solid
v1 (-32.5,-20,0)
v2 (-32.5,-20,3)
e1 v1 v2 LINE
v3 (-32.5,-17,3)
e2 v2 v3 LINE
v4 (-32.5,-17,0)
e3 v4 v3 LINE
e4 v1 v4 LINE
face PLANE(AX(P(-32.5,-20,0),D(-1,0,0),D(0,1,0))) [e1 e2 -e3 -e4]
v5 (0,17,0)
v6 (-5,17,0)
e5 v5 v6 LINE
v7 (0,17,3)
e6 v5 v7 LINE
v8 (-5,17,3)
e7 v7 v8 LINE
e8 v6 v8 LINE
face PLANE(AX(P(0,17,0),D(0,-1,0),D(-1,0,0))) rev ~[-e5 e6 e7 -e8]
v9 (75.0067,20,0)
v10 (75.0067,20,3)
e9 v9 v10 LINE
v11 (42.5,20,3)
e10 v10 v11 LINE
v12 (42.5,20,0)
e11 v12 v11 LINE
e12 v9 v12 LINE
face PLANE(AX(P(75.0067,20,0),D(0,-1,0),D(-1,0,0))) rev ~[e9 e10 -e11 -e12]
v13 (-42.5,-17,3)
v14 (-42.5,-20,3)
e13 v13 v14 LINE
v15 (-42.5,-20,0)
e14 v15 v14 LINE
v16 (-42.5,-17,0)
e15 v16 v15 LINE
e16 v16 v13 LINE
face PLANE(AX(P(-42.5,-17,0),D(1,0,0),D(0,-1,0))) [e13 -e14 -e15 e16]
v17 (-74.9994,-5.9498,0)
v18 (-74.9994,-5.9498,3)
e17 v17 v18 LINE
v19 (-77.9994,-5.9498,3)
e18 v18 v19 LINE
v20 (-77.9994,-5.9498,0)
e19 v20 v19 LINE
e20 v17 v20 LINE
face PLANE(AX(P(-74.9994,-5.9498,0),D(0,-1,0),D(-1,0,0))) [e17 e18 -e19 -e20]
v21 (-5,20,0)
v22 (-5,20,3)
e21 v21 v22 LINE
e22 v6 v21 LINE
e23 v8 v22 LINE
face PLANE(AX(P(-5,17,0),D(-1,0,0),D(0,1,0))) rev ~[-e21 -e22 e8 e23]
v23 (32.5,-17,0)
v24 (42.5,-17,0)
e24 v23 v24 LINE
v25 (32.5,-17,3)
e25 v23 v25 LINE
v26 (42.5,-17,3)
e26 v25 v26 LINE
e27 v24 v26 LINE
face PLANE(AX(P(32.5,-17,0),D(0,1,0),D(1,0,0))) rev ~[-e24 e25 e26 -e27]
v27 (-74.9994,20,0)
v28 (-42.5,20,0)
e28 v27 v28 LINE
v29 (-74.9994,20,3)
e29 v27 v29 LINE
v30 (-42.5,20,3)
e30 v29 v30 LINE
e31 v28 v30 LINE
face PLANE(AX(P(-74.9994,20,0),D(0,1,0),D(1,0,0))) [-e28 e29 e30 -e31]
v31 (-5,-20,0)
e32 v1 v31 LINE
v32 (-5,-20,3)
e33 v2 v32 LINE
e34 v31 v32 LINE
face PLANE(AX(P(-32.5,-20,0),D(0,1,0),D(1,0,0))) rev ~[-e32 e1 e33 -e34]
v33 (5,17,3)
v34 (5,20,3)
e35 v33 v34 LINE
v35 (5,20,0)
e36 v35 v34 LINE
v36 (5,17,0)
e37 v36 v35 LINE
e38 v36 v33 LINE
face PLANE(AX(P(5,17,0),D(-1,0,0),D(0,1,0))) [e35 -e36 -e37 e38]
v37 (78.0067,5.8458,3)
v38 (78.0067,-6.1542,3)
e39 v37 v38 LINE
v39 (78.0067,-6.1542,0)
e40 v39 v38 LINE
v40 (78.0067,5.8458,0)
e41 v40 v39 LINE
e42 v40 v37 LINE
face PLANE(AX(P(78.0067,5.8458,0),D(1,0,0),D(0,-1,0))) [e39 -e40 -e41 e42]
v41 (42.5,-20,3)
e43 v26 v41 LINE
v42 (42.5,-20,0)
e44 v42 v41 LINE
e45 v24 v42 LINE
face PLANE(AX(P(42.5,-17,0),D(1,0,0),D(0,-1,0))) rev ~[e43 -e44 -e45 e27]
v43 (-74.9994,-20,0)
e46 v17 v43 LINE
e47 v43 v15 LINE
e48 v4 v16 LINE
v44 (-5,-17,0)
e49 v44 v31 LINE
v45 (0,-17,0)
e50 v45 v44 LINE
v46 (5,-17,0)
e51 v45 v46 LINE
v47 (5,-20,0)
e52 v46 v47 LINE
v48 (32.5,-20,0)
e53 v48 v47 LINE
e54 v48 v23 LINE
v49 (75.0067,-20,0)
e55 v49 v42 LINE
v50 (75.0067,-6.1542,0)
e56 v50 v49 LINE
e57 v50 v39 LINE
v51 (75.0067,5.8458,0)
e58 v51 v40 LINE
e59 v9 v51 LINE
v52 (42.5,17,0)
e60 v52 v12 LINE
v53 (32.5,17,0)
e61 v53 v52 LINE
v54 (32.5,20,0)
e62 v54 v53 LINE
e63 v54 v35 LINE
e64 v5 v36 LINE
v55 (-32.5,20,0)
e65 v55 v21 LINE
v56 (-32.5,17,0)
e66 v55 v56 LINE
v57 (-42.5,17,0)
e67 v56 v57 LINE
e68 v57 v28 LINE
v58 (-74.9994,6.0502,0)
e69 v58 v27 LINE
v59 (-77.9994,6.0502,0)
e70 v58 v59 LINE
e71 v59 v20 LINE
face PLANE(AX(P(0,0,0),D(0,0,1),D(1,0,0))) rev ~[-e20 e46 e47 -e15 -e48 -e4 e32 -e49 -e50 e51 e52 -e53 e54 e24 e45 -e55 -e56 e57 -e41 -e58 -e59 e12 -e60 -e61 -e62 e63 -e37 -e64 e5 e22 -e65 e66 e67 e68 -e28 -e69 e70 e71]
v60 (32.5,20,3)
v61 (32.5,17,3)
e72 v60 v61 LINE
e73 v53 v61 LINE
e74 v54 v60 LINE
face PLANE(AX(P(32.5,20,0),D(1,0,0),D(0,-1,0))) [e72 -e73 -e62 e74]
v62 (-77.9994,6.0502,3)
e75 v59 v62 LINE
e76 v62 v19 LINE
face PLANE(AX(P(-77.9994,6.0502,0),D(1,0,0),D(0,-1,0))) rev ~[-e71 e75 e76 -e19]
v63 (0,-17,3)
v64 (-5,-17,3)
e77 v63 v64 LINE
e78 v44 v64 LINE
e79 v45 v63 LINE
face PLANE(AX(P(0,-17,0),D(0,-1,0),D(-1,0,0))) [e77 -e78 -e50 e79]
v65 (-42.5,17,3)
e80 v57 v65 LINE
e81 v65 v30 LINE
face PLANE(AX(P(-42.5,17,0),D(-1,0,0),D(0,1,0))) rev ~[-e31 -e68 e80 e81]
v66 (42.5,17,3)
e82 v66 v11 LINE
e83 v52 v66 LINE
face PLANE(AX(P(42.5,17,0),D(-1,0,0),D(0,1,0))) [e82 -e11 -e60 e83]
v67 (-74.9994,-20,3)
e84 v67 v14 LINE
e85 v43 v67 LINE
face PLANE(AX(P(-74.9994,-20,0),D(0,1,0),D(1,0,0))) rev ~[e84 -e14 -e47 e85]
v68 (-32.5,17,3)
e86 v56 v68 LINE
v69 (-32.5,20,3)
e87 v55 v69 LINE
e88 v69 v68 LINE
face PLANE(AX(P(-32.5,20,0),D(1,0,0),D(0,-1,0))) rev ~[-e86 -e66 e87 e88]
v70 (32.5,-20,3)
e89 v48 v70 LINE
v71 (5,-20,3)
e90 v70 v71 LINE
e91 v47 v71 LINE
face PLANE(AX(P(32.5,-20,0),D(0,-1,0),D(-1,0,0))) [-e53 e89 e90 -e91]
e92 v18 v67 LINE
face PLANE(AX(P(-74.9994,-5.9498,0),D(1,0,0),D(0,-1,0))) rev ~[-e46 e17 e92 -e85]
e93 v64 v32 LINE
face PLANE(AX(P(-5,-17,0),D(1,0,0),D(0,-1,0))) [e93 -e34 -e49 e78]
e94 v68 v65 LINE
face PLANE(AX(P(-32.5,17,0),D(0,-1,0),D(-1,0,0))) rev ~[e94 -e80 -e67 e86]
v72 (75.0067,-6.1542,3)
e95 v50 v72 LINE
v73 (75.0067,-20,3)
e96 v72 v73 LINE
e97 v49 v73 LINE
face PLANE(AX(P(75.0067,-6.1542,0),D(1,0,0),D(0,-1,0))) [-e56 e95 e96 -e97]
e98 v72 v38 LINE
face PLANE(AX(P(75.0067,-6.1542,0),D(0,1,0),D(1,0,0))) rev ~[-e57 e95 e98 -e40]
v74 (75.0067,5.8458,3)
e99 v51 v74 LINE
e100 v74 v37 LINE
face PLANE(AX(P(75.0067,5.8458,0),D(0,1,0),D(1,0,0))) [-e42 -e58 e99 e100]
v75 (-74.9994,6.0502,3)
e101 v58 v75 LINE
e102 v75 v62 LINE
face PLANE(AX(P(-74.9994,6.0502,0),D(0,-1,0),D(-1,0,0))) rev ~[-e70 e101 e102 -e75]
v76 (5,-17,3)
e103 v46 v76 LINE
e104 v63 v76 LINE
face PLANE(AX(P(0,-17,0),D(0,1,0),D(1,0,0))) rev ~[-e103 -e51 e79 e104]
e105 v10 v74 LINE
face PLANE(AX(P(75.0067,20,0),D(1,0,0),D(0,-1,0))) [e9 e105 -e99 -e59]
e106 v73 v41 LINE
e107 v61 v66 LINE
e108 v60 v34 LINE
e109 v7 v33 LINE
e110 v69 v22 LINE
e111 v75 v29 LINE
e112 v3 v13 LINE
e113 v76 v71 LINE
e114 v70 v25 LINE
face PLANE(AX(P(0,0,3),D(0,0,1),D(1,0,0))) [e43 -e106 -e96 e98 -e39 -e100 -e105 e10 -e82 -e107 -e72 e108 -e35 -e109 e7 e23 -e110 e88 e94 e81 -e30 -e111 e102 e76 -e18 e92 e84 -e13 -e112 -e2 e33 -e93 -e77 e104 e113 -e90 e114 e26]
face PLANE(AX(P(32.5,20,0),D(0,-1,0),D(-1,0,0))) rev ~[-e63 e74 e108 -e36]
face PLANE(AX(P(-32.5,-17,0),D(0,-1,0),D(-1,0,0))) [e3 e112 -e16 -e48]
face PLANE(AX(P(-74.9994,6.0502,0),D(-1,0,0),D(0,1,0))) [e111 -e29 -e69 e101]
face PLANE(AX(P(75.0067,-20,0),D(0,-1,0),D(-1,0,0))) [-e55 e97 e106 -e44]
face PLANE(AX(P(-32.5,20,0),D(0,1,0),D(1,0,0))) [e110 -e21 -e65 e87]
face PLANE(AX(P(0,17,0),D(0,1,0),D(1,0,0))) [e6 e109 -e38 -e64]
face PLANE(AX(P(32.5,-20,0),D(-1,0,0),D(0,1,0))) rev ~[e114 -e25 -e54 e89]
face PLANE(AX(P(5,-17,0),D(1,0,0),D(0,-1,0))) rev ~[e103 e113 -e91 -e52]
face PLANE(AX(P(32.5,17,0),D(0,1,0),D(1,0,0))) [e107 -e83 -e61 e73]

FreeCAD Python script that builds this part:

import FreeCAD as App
import Part
import Sketcher
from FreeCAD import Vector
Q = App.Units.Quantity


def add_polygon(sketch, points):
    """Adds a closed chain of lines whose ends are joined by coincident constraints."""
    first, n = sketch.GeometryCount, len(points)
    for a, b in zip(points, points[1:] + points[:1]):
        sketch.addGeometry(Part.LineSegment(App.Vector(*a, 0), App.Vector(*b, 0)), False)
    for i in range(n):
        sketch.addConstraint(Sketcher.Constraint("Coincident", first + i, 2, first + (i + 1) % n, 1))

doc = App.newDocument("Part")
body = doc.addObject("PartDesign::Body", "Body")

# Sketch on XY plane
sketch1 = body.newObject("Sketcher::SketchObject", "Sketch")
sketch1.AttachmentSupport = (doc.getObject("XY_Plane"), [""])
sketch1.MapMode = "FlatFace"
add_polygon(sketch1, [(-42.5, 20), (-75, 20), (-75, 6.1), (-78, 6.1), (-78, -5.9), (-75, -5.9), (-75, -20), (-42.5, -20), (-42.5, -17), (-32.5, -17), (-32.5, -20), (-5, -20), (-5, -17), (5, -17), (5, -20), (32.5, -20), (32.5, -17), (42.5, -17), (42.5, -20), (75, -20), (75, -6.2), (78, -6.2), (78, 5.8), (75, 5.8), (75, 20), (42.5, 20), (42.5, 17), (32.5, 17), (32.5, 20), (5, 20), (5, 17), (-5, 17), (-5, 20), (-32.5, 20), (-32.5, 17), (-42.5, 17)])  # lines 0-35
sketch1.addConstraint([
    Sketcher.Constraint("Horizontal", 0),
    Sketcher.Constraint("Vertical", 1),
    Sketcher.Constraint("Horizontal", 2),
    Sketcher.Constraint("Vertical", 3),
    Sketcher.Constraint("Horizontal", 4),
    Sketcher.Constraint("Vertical", 5),
    Sketcher.Constraint("Horizontal", 6),
    Sketcher.Constraint("Vertical", 7),
    Sketcher.Constraint("Horizontal", 8),
    Sketcher.Constraint("Vertical", 9),
    Sketcher.Constraint("Horizontal", 10),
    Sketcher.Constraint("Vertical", 11),
    Sketcher.Constraint("Horizontal", 12),
    Sketcher.Constraint("Vertical", 13),
    Sketcher.Constraint("Horizontal", 14),
    Sketcher.Constraint("Vertical", 15),
    Sketcher.Constraint("Horizontal", 16),
    Sketcher.Constraint("Vertical", 17),
    Sketcher.Constraint("Horizontal", 18),
    Sketcher.Constraint("Vertical", 19),
    Sketcher.Constraint("Horizontal", 20),
    Sketcher.Constraint("Vertical", 21),
    Sketcher.Constraint("Horizontal", 22),
    Sketcher.Constraint("Vertical", 23),
    Sketcher.Constraint("Horizontal", 24),
    Sketcher.Constraint("Vertical", 25),
    Sketcher.Constraint("Horizontal", 26),
    Sketcher.Constraint("Vertical", 27),
    Sketcher.Constraint("Horizontal", 28),
    Sketcher.Constraint("Vertical", 29),
    Sketcher.Constraint("Horizontal", 30),
    Sketcher.Constraint("Vertical", 31),
    Sketcher.Constraint("Horizontal", 32),
    Sketcher.Constraint("Vertical", 33),
    Sketcher.Constraint("Horizontal", 34),
    Sketcher.Constraint("Vertical", 35),
    Sketcher.Constraint("Symmetric", 6, 2, 24, 2, -1, 1),
    Sketcher.Constraint("Symmetric", 8, 2, 26, 2, -1, 1),
    Sketcher.Constraint("Symmetric", 10, 2, 28, 2, -1, 1),
    Sketcher.Constraint("Symmetric", 12, 2, 30, 2, -1, 1),
    Sketcher.Constraint("Symmetric", 14, 2, 32, 2, -1, 1),
    Sketcher.Constraint("Symmetric", 16, 2, 34, 2, -1, 1),
    Sketcher.Constraint("Symmetric", 10, 2, 13, 2, -2),
    Sketcher.Constraint("Symmetric", 8, 2, 15, 2, -2),
    Sketcher.Constraint("Symmetric", 6, 2, 17, 2, -2),
    Sketcher.Constraint("Symmetric", 0, 2, 5, 2, -1),
    Sketcher.Constraint("Horizontal", 6, 2, 9, 2),
    Sketcher.Constraint("Horizontal", 8, 2, 11, 2),
    Sketcher.Constraint("Vertical", 19, 2, 22, 2),
    Sketcher.Constraint("Equal", 8, 12),
    Sketcher.Constraint("Equal", 4, 20),
    Sketcher.Constraint("Equal", 22, 7),
    Sketcher.Constraint("Equal", 3, 21),
    Sketcher.Constraint("DistanceX", 2, 2, 2, 1, Q("3 mm")),
    Sketcher.Constraint("DistanceX", 8, 1, 8, 2, Q("10 mm")),
    Sketcher.Constraint("DistanceY", 3, 2, 3, 1, Q("12 mm")),
    Sketcher.Constraint("DistanceX", 10, 1, 10, 2, Q("27.5 mm")),
    Sketcher.Constraint("DistanceY", -1, 1, 0, 2, Q("20 mm")),
    Sketcher.Constraint("DistanceX", 0, 2, 0, 1, Q("32.4994 mm")),
    Sketcher.Constraint("DistanceX", 18, 1, 18, 2, Q("32.5067 mm")),
    Sketcher.Constraint("DistanceY", 1, 2, 1, 1, Q("13.9498 mm")),
    Sketcher.Constraint("DistanceY", 19, 1, 19, 2, Q("13.8458 mm")),
])
pad1 = body.newObject("PartDesign::Pad", "Pad")
pad1.Profile = sketch1
pad1.Length = 3

doc.recompute()
